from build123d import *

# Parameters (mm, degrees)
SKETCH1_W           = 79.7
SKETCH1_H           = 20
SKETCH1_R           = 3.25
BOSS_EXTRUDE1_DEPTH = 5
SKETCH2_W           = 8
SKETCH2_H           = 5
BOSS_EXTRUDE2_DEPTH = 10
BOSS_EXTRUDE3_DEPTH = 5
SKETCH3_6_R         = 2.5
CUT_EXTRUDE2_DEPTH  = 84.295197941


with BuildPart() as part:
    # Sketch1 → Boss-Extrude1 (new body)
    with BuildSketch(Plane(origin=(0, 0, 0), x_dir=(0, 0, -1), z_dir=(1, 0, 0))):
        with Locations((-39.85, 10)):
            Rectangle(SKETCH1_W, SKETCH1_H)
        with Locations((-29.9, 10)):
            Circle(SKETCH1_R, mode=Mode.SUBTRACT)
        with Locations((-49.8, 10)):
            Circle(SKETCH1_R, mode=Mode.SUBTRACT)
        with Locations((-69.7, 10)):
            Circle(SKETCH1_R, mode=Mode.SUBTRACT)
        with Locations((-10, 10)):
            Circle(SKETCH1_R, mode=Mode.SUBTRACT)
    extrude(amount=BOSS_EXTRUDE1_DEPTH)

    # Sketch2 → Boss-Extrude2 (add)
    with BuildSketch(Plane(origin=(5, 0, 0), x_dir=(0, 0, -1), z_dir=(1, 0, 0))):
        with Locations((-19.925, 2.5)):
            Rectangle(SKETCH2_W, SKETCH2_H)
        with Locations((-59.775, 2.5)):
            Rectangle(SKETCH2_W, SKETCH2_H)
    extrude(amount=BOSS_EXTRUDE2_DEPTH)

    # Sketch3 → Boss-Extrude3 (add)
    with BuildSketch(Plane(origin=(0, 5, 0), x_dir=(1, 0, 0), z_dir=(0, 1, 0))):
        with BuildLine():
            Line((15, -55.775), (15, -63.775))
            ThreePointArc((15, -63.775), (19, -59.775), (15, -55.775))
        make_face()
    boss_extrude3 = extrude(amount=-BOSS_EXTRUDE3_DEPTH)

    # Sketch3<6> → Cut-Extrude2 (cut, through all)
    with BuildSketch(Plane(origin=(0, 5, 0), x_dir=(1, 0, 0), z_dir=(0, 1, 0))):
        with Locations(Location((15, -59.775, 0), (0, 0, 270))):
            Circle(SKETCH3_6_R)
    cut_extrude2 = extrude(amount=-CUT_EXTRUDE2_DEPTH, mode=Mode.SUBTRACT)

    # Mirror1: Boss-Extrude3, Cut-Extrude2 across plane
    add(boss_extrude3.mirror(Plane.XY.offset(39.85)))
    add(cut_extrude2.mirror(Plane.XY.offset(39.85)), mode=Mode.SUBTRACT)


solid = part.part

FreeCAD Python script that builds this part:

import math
import FreeCAD as App
import Part
import Sketcher
from FreeCAD import Vector
Q = App.Units.Quantity


def add_polygon(sketch, points):
    """Adds a closed chain of lines whose ends are joined by coincident constraints."""
    first, n = sketch.GeometryCount, len(points)
    for a, b in zip(points, points[1:] + points[:1]):
        sketch.addGeometry(Part.LineSegment(App.Vector(*a, 0), App.Vector(*b, 0)), False)
    for i in range(n):
        sketch.addConstraint(Sketcher.Constraint("Coincident", first + i, 2, first + (i + 1) % n, 1))

doc = App.newDocument("Part")
body = doc.addObject("PartDesign::Body", "Body")

# Sketch on YZ plane
sketch1 = body.newObject("Sketcher::SketchObject", "Sketch")
sketch1.AttachmentSupport = (doc.getObject("YZ_Plane"), [""])
sketch1.MapMode = "FlatFace"
add_polygon(sketch1, [(20, 79.7), (0, 79.7), (0, 0), (20, 0)])  # lines 0-3
sketch1.addGeometry(Part.Circle(Vector(10, 69.7, 0), Vector(0, 0, 1), 3.25), False)  # 4
sketch1.addGeometry(Part.Circle(Vector(10, 49.8, 0), Vector(0, 0, 1), 3.25), False)  # 5
sketch1.addGeometry(Part.Circle(Vector(10, 29.9, 0), Vector(0, 0, 1), 3.25), False)  # 6
sketch1.addGeometry(Part.Circle(Vector(10, 10, 0), Vector(0, 0, 1), 3.25), False)  # 7
sketch1.addConstraint(Sketcher.Constraint("Horizontal", 0))
sketch1.addConstraint(Sketcher.Constraint("Vertical", 1))
sketch1.addConstraint(Sketcher.Constraint("Horizontal", 2))
sketch1.addConstraint(Sketcher.Constraint("Vertical", 3))
sketch1.addConstraint(Sketcher.Constraint("Coincident", 1, 2, -1, 1))
sketch1.addConstraint(Sketcher.Constraint("Equal", 4, 5))
sketch1.addConstraint(Sketcher.Constraint("Equal", 5, 6))
sketch1.addConstraint(Sketcher.Constraint("Equal", 6, 7))
sketch1.addConstraint(Sketcher.Constraint("Vertical", 4, 3, 5, 3))
sketch1.addConstraint(Sketcher.Constraint("Vertical", 5, 3, 6, 3))
sketch1.addConstraint(Sketcher.Constraint("Vertical", 6, 3, 7, 3))
sketch1.addConstraint(Sketcher.Constraint("Diameter", 4, Q("6.5 mm")))
sketch1.addConstraint(Sketcher.Constraint("DistanceX", 0, 2, 0, 1, Q("20 mm")))
sketch1.addConstraint(Sketcher.Constraint("DistanceY", 1, 2, 1, 1, Q("79.7 mm")))
sketch1.addConstraint(Sketcher.Constraint("DistanceX", -1, 1, 4, 3, Q("10 mm")))
sketch1.addConstraint(Sketcher.Constraint("DistanceY", -1, 1, 7, 3, Q("10 mm")))
sketch1.addConstraint(Sketcher.Constraint("DistanceY", 4, 3, 0, 2, Q("10 mm")))
sketch1.addConstraint(Sketcher.Constraint("DistanceY", -1, 1, 5, 3, Q("49.8 mm")))
sketch1.addConstraint(Sketcher.Constraint("DistanceY", -1, 1, 6, 3, Q("29.9 mm")))
pad1 = body.newObject("PartDesign::Pad", "Pad")
pad1.Profile = sketch1
pad1.Length = 5

# Sketch on YZ plane
sketch2 = body.newObject("Sketcher::SketchObject", "Sketch001")
sketch2.AttachmentSupport = (doc.getObject("YZ_Plane"), [""])
sketch2.MapMode = "FlatFace"
sketch2.AttachmentOffset = App.Placement(Vector(0, 0, 5), App.Rotation())
add_polygon(sketch2, [(5, 23.925), (0, 23.925), (0, 15.925), (5, 15.925)])  # lines 0-3
add_polygon(sketch2, [(5, 63.775), (0, 63.775), (0, 55.775), (5, 55.775)])  # lines 4-7
sketch2.addConstraint(Sketcher.Constraint("Horizontal", 0))
sketch2.addConstraint(Sketcher.Constraint("Vertical", 1))
sketch2.addConstraint(Sketcher.Constraint("Horizontal", 2))
sketch2.addConstraint(Sketcher.Constraint("Vertical", 3))
sketch2.addConstraint(Sketcher.Constraint("Horizontal", 4))
sketch2.addConstraint(Sketcher.Constraint("Vertical", 5))
sketch2.addConstraint(Sketcher.Constraint("Horizontal", 6))
sketch2.addConstraint(Sketcher.Constraint("Vertical", 7))
sketch2.addConstraint(Sketcher.Constraint("PointOnObject", 0, 2, -2))
sketch2.addConstraint(Sketcher.Constraint("PointOnObject", 4, 2, -2))
sketch2.addConstraint(Sketcher.Constraint("Vertical", 3, 2, 6, 2))
sketch2.addConstraint(Sketcher.Constraint("Equal", 3, 5))
sketch2.addConstraint(Sketcher.Constraint("DistanceX", 0, 2, 0, 1, Q("5 mm")))
sketch2.addConstraint(Sketcher.Constraint("DistanceY", 1, 2, 1, 1, Q("8 mm")))
sketch2.addConstraint(Sketcher.Constraint("DistanceY", 0, 2, 4, 2, Q("39.85 mm")))
sketch2.addConstraint(Sketcher.Constraint("DistanceY", -1, 1, 0, 2, Q("23.925 mm")))
pad2 = body.newObject("PartDesign::Pad", "Pad001")
pad2.Profile = sketch2
pad2.Length = 10

# Sketch on XZ plane
sketch3 = body.newObject("Sketcher::SketchObject", "Sketch002")
sketch3.AttachmentSupport = (doc.getObject("XZ_Plane"), [""])
sketch3.MapMode = "FlatFace"
sketch3.AttachmentOffset = App.Placement(Vector(0, 0, -5), App.Rotation())
sketch3.addGeometry(Part.LineSegment(Vector(15, 55.775, 0), Vector(15, 63.775, 0)), False)
sketch3.addGeometry(Part.ArcOfCircle(Part.Circle(Vector(15, 59.775, 0), Vector(0, 0, 1), 4), math.radians(-90), math.radians(90)), False)
sketch3.addConstraint(Sketcher.Constraint("Coincident", 0, 1, 1, 1))
sketch3.addConstraint(Sketcher.Constraint("Coincident", 1, 2, 0, 2))
sketch3.addConstraint(Sketcher.Constraint("Vertical", 0))
sketch3.addConstraint(Sketcher.Constraint("Vertical", 1, 3, 0, 1))
sketch3.addConstraint(Sketcher.Constraint("Radius", 1, Q("4 mm")))
sketch3.addConstraint(Sketcher.Constraint("DistanceX", -1, 1, 1, 3, Q("15 mm")))
sketch3.addConstraint(Sketcher.Constraint("DistanceY", -1, 1, 1, 3, Q("59.775 mm")))
pad3 = body.newObject("PartDesign::Pad", "Pad002")
pad3.Profile = sketch3
pad3.Length = 5

# Sketch on XZ plane
sketch4 = body.newObject("Sketcher::SketchObject", "Sketch003")
sketch4.AttachmentSupport = (doc.getObject("XZ_Plane"), [""])
sketch4.MapMode = "FlatFace"
sketch4.AttachmentOffset = App.Placement(Vector(0, 0, -5), App.Rotation())
sketch4.addGeometry(Part.Circle(Vector(15, 59.775, 0), Vector(0, 0, 1), 2.5), False)
sketch4.addConstraint(Sketcher.Constraint("Diameter", 0, Q("5 mm")))
sketch4.addConstraint(Sketcher.Constraint("DistanceX", -1, 1, 0, 3, Q("15 mm")))
sketch4.addConstraint(Sketcher.Constraint("DistanceY", -1, 1, 0, 3, Q("59.775 mm")))
pocket1 = body.newObject("PartDesign::Pocket", "Pocket")
pocket1.Profile = sketch4
pocket1.Type = "ThroughAll"
pocket1.Reversed = True
doc.recompute()

datumplane = body.newObject("PartDesign::Plane", "DatumPlane")
datumplane.AttachmentSupport = (doc.getObject("XY_Plane"), [""])
datumplane.MapMode = "FlatFace"
datumplane.AttachmentOffset = App.Placement(Vector(0, 0, 39.85), App.Rotation())
mirrored = body.newObject("PartDesign::Mirrored", "Mirrored")
mirrored.Originals = [pad3, pocket1]
mirrored.MirrorPlane = (datumplane, [""])
body.Tip = mirrored

doc.recompute()
